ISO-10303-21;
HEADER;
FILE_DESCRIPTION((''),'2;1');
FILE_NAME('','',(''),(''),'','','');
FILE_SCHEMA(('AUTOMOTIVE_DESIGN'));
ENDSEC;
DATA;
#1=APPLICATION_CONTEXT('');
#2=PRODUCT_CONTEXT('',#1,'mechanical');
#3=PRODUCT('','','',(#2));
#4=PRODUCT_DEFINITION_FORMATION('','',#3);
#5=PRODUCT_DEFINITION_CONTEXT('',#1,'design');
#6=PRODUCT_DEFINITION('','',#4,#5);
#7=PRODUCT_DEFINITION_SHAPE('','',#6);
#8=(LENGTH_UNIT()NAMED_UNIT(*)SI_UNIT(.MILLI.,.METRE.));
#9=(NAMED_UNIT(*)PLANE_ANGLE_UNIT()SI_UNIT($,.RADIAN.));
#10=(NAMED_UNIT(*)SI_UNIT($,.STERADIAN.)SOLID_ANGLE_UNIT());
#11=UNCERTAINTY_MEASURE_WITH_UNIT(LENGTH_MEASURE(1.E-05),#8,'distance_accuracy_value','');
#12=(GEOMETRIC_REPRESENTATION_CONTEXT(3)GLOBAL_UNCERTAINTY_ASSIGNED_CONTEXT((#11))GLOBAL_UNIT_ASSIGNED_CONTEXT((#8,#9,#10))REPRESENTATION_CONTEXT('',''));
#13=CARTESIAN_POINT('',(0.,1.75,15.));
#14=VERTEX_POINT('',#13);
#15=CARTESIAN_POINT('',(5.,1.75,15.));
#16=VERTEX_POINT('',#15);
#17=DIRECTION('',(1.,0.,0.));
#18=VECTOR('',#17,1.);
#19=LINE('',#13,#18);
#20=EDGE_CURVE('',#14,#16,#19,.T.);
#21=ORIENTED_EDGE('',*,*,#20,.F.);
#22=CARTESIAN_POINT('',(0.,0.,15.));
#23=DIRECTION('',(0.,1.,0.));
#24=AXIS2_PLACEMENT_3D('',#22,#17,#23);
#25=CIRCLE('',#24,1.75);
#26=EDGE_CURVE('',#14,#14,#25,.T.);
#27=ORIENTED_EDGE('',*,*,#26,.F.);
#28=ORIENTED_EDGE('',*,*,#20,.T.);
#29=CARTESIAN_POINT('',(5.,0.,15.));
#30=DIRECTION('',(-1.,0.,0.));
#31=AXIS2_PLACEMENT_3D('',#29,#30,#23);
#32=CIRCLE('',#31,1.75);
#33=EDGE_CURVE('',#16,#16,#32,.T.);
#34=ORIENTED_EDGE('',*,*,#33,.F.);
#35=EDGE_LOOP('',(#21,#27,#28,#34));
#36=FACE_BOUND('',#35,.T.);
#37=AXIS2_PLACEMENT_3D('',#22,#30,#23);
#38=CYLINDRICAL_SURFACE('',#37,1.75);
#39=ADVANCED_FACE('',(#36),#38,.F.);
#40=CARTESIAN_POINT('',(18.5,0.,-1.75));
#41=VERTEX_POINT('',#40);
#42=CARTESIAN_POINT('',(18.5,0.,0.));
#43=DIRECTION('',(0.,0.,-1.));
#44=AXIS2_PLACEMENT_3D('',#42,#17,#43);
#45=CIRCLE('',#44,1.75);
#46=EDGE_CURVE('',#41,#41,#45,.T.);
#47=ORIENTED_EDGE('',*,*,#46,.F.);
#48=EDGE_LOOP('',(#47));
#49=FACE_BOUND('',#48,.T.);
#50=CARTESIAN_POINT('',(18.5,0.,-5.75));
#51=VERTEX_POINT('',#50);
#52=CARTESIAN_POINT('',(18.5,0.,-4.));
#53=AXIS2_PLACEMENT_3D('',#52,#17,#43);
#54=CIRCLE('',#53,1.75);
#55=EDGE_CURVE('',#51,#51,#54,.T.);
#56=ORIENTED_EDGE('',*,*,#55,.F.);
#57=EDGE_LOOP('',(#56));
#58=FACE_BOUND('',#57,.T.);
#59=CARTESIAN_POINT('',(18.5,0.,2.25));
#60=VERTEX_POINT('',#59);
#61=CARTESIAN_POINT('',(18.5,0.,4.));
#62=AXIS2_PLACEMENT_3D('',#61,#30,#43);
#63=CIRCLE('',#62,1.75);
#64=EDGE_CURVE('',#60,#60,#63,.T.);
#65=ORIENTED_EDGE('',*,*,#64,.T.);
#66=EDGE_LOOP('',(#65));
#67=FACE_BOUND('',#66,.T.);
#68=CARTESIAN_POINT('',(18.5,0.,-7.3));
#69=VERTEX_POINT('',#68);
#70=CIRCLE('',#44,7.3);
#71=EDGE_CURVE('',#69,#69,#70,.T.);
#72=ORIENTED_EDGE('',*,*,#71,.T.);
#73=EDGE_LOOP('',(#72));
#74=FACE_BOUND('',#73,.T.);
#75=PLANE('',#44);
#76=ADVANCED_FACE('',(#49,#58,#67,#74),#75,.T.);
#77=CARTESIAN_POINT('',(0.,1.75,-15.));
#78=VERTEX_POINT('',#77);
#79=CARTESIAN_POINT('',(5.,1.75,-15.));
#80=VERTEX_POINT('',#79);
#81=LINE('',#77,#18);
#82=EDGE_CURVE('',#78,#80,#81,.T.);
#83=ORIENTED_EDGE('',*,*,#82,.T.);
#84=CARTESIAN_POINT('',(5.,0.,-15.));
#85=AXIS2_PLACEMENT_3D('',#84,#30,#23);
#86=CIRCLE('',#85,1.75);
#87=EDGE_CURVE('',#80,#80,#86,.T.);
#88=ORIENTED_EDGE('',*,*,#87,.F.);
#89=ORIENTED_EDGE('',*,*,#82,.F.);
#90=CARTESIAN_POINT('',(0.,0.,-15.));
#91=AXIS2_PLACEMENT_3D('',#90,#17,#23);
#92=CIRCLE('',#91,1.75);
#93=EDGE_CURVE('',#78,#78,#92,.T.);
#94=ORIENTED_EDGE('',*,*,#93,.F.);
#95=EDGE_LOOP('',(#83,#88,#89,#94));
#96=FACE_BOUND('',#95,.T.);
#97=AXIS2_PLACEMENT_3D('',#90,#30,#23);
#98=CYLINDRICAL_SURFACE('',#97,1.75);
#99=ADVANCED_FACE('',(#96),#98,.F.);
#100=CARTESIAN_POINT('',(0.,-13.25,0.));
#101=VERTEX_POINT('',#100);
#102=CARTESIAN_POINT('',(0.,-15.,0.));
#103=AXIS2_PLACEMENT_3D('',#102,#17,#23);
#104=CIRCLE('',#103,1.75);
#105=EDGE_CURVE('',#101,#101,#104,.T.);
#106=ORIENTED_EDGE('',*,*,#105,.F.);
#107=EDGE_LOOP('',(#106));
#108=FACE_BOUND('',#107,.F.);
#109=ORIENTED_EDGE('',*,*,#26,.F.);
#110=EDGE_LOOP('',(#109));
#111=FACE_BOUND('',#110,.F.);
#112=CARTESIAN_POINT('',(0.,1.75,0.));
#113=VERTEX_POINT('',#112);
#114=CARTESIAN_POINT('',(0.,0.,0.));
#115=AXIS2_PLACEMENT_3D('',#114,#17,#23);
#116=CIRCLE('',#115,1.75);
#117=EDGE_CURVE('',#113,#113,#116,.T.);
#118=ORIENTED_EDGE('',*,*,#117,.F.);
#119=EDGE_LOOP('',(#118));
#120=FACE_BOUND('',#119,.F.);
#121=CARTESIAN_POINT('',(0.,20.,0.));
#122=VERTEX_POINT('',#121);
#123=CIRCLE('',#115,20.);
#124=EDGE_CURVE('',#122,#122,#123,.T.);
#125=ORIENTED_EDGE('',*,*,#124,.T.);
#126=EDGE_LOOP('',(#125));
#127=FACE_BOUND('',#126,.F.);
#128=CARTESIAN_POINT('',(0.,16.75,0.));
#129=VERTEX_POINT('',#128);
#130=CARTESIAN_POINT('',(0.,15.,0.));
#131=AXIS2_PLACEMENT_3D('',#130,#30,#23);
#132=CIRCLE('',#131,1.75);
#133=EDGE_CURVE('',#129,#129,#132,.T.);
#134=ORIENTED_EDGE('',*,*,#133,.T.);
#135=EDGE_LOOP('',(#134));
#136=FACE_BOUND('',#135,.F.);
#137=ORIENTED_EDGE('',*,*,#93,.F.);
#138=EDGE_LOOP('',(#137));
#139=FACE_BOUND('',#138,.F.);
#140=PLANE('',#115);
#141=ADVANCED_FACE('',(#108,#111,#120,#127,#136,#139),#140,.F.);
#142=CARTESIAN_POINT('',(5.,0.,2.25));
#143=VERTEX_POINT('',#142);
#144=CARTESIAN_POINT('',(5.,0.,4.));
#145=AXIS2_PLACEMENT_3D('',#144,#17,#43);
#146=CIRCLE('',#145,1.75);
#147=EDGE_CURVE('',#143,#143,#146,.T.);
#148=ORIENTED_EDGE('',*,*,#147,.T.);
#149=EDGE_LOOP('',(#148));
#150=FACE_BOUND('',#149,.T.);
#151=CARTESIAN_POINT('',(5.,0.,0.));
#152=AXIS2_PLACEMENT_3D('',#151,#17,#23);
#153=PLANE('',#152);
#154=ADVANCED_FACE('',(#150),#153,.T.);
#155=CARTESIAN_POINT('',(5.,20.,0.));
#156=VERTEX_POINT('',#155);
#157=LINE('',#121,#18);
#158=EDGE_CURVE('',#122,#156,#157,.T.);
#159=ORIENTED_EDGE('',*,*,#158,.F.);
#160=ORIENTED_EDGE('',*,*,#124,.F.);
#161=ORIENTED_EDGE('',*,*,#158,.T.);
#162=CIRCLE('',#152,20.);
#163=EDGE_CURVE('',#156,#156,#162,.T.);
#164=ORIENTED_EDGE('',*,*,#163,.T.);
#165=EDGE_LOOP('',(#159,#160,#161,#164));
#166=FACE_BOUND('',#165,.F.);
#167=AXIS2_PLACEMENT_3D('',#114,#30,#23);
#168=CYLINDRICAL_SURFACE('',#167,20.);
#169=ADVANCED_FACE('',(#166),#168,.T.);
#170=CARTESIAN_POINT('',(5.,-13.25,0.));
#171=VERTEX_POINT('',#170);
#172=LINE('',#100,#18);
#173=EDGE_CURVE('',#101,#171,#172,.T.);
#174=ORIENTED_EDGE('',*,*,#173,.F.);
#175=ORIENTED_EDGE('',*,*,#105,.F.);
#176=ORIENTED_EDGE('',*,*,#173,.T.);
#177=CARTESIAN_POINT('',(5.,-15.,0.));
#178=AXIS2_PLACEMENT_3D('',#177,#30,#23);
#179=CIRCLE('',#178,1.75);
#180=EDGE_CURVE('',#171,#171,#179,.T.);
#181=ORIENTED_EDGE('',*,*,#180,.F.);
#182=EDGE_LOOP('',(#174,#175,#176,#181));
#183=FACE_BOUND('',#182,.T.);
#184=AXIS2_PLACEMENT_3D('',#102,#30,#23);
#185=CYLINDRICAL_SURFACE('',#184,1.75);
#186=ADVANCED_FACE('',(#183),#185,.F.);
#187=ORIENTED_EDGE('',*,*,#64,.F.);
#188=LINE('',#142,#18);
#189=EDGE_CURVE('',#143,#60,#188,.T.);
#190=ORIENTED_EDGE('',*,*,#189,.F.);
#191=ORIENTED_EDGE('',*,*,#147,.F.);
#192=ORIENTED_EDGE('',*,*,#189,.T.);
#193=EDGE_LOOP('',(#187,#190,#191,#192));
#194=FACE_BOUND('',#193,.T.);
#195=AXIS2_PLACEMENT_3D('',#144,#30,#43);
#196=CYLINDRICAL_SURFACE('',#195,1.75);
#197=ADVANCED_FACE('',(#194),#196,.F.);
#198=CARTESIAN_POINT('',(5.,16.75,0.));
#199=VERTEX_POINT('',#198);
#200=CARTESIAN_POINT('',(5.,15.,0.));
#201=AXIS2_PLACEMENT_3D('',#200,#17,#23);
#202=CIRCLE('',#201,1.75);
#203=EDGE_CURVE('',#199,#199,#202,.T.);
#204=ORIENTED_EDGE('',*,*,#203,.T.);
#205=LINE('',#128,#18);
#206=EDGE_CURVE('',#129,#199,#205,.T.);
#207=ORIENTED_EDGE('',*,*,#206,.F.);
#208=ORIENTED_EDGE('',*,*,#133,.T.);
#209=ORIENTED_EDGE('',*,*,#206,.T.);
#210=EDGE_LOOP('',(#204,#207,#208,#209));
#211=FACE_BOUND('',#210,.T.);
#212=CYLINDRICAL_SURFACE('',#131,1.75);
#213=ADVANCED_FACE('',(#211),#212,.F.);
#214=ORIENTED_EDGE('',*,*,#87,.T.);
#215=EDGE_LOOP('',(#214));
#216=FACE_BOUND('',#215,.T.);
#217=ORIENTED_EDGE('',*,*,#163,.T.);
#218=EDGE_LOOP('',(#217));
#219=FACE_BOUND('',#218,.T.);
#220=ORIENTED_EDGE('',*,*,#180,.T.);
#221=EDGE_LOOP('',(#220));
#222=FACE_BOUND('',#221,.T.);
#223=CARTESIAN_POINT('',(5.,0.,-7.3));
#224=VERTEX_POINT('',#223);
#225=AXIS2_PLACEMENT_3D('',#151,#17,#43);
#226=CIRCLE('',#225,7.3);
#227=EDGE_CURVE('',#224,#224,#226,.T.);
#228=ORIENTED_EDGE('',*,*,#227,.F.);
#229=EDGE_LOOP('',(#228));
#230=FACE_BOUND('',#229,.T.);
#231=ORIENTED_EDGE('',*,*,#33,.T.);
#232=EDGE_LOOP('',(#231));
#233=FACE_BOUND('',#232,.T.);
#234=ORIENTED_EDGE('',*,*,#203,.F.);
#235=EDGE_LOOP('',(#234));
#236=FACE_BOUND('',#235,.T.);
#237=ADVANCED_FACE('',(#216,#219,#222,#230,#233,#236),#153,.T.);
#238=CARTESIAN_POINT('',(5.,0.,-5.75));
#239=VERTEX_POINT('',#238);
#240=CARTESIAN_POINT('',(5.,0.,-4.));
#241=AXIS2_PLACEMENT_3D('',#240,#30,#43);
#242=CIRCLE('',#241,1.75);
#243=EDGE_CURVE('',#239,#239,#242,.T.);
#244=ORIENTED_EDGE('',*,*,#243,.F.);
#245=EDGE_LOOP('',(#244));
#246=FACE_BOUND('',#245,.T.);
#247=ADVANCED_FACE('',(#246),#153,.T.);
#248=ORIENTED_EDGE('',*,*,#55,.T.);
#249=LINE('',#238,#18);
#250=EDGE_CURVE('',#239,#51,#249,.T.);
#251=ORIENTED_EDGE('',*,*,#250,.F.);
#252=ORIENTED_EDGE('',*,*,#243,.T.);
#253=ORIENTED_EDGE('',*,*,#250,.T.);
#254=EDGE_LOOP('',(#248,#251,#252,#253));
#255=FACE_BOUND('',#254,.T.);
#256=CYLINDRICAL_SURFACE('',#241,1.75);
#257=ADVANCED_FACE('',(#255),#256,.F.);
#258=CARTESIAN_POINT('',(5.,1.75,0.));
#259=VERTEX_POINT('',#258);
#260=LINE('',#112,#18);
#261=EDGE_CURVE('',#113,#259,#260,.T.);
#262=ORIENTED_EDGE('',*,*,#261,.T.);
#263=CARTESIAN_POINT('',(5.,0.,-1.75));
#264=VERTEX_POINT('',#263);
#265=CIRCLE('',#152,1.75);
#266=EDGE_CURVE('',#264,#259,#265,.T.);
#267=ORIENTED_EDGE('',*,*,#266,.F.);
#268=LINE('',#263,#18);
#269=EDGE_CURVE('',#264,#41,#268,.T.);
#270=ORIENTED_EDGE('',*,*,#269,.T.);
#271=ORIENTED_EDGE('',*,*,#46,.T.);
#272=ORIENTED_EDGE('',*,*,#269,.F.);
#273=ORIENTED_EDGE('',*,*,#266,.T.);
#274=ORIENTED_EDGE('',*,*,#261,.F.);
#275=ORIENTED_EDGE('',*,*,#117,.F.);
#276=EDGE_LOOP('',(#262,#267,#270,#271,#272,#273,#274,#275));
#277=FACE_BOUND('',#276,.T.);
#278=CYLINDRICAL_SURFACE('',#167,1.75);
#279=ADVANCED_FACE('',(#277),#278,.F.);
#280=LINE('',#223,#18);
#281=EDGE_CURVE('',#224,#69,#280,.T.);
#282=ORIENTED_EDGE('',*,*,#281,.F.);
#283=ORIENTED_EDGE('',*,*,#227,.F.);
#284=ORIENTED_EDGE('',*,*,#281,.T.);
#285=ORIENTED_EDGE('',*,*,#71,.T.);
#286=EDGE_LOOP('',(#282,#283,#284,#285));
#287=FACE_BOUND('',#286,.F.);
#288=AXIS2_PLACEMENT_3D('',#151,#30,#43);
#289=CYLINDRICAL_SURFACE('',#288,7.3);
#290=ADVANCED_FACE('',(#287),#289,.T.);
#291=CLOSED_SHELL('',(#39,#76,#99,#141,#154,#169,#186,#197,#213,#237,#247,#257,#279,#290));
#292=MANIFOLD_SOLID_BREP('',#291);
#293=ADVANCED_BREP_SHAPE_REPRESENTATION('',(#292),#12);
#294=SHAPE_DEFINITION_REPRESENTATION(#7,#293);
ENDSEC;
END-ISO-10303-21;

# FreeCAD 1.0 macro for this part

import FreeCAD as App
import Part
import Sketcher
from FreeCAD import Vector

doc = App.newDocument("Part")
body = doc.addObject("PartDesign::Body", "Body")

sketch1 = body.newObject("Sketcher::SketchObject", "Sketch")
sketch1.AttachmentSupport = (doc.getObject("YZ_Plane"), [""])
sketch1.MapMode = "FlatFace"
sketch1.addGeometry(Part.Circle(Vector(0, 0, 0), Vector(0, 0, 1), 20), False)
sketch1.addGeometry(Part.Circle(Vector(15, 0, 0), Vector(0, 0, 1), 1.8), False)
sketch1.addGeometry(Part.Circle(Vector(0, -15, 0), Vector(0, 0, 1), 1.8), False)
sketch1.addGeometry(Part.Circle(Vector(-15, 0, 0), Vector(0, 0, 1), 1.8), False)
sketch1.addGeometry(Part.Circle(Vector(0, 15, 0), Vector(0, 0, 1), 1.8), False)
sketch1.addGeometry(Part.Circle(Vector(0, 0, 0), Vector(0, 0, 1), 1.8), False)
sketch1.addConstraint(Sketcher.Constraint("Coincident", 0, 3, -1, 1))
sketch1.addConstraint(Sketcher.Constraint("Coincident", 5, 3, -1, 1))
sketch1.addConstraint(Sketcher.Constraint("Equal", 1, 2))
sketch1.addConstraint(Sketcher.Constraint("Equal", 2, 3))
sketch1.addConstraint(Sketcher.Constraint("Equal", 3, 4))
sketch1.addConstraint(Sketcher.Constraint("Equal", 4, 5))
sketch1.addConstraint(Sketcher.Constraint("Symmetric", 1, 3, 3, 3, -1, 1))
sketch1.addConstraint(Sketcher.Constraint("Symmetric", 2, 3, 4, 3, -1, 1))
sketch1.addConstraint(Sketcher.Constraint("PointOnObject", 1, 3, -1))
sketch1.addConstraint(Sketcher.Constraint("PointOnObject", 2, 3, -2))
sketch1.addConstraint(Sketcher.Constraint("Diameter", 0, 40.0))
sketch1.addConstraint(Sketcher.Constraint("Diameter", 1, 3.5))
sketch1.addConstraint(Sketcher.Constraint("DistanceX", 3, 3, 1, 3, 30.0))
sketch1.addConstraint(Sketcher.Constraint("DistanceY", 2, 3, 4, 3, 30.0))
pad1 = body.newObject("PartDesign::Pad", "Pad")
pad1.Profile = sketch1
pad1.Length = 5

sketch2 = body.newObject("Sketcher::SketchObject", "Sketch001")
sketch2.AttachmentSupport = (doc.getObject("YZ_Plane"), [""])
sketch2.MapMode = "FlatFace"
sketch2.AttachmentOffset = App.Placement(Vector(0, 0, 5), App.Rotation())
sketch2.addGeometry(Part.Circle(Vector(0, 0, 0), Vector(0, 0, 1), 7.3), False)
sketch2.addGeometry(Part.Circle(Vector(0, -4, 0), Vector(0, 0, 1), 1.8), False)
sketch2.addGeometry(Part.Circle(Vector(0, 4, 0), Vector(0, 0, 1), 1.8), False)
sketch2.addGeometry(Part.Circle(Vector(0, 0, 0), Vector(0, 0, 1), 1.8), False)
sketch2.addConstraint(Sketcher.Constraint("Coincident", 0, 3, -1, 1))
sketch2.addConstraint(Sketcher.Constraint("Coincident", 3, 3, -1, 1))
sketch2.addConstraint(Sketcher.Constraint("Equal", 1, 2))
sketch2.addConstraint(Sketcher.Constraint("Equal", 2, 3))
sketch2.addConstraint(Sketcher.Constraint("Symmetric", 1, 3, 2, 3, -1, 1))
sketch2.addConstraint(Sketcher.Constraint("PointOnObject", 1, 3, -2))
sketch2.addConstraint(Sketcher.Constraint("Diameter", 0, 14.6))
sketch2.addConstraint(Sketcher.Constraint("Diameter", 1, 3.5))
sketch2.addConstraint(Sketcher.Constraint("DistanceY", 1, 3, 2, 3, 8.0))
pad2 = body.newObject("PartDesign::Pad", "Pad001")
pad2.Profile = sketch2
pad2.Length = 13.5

doc.recompute()
